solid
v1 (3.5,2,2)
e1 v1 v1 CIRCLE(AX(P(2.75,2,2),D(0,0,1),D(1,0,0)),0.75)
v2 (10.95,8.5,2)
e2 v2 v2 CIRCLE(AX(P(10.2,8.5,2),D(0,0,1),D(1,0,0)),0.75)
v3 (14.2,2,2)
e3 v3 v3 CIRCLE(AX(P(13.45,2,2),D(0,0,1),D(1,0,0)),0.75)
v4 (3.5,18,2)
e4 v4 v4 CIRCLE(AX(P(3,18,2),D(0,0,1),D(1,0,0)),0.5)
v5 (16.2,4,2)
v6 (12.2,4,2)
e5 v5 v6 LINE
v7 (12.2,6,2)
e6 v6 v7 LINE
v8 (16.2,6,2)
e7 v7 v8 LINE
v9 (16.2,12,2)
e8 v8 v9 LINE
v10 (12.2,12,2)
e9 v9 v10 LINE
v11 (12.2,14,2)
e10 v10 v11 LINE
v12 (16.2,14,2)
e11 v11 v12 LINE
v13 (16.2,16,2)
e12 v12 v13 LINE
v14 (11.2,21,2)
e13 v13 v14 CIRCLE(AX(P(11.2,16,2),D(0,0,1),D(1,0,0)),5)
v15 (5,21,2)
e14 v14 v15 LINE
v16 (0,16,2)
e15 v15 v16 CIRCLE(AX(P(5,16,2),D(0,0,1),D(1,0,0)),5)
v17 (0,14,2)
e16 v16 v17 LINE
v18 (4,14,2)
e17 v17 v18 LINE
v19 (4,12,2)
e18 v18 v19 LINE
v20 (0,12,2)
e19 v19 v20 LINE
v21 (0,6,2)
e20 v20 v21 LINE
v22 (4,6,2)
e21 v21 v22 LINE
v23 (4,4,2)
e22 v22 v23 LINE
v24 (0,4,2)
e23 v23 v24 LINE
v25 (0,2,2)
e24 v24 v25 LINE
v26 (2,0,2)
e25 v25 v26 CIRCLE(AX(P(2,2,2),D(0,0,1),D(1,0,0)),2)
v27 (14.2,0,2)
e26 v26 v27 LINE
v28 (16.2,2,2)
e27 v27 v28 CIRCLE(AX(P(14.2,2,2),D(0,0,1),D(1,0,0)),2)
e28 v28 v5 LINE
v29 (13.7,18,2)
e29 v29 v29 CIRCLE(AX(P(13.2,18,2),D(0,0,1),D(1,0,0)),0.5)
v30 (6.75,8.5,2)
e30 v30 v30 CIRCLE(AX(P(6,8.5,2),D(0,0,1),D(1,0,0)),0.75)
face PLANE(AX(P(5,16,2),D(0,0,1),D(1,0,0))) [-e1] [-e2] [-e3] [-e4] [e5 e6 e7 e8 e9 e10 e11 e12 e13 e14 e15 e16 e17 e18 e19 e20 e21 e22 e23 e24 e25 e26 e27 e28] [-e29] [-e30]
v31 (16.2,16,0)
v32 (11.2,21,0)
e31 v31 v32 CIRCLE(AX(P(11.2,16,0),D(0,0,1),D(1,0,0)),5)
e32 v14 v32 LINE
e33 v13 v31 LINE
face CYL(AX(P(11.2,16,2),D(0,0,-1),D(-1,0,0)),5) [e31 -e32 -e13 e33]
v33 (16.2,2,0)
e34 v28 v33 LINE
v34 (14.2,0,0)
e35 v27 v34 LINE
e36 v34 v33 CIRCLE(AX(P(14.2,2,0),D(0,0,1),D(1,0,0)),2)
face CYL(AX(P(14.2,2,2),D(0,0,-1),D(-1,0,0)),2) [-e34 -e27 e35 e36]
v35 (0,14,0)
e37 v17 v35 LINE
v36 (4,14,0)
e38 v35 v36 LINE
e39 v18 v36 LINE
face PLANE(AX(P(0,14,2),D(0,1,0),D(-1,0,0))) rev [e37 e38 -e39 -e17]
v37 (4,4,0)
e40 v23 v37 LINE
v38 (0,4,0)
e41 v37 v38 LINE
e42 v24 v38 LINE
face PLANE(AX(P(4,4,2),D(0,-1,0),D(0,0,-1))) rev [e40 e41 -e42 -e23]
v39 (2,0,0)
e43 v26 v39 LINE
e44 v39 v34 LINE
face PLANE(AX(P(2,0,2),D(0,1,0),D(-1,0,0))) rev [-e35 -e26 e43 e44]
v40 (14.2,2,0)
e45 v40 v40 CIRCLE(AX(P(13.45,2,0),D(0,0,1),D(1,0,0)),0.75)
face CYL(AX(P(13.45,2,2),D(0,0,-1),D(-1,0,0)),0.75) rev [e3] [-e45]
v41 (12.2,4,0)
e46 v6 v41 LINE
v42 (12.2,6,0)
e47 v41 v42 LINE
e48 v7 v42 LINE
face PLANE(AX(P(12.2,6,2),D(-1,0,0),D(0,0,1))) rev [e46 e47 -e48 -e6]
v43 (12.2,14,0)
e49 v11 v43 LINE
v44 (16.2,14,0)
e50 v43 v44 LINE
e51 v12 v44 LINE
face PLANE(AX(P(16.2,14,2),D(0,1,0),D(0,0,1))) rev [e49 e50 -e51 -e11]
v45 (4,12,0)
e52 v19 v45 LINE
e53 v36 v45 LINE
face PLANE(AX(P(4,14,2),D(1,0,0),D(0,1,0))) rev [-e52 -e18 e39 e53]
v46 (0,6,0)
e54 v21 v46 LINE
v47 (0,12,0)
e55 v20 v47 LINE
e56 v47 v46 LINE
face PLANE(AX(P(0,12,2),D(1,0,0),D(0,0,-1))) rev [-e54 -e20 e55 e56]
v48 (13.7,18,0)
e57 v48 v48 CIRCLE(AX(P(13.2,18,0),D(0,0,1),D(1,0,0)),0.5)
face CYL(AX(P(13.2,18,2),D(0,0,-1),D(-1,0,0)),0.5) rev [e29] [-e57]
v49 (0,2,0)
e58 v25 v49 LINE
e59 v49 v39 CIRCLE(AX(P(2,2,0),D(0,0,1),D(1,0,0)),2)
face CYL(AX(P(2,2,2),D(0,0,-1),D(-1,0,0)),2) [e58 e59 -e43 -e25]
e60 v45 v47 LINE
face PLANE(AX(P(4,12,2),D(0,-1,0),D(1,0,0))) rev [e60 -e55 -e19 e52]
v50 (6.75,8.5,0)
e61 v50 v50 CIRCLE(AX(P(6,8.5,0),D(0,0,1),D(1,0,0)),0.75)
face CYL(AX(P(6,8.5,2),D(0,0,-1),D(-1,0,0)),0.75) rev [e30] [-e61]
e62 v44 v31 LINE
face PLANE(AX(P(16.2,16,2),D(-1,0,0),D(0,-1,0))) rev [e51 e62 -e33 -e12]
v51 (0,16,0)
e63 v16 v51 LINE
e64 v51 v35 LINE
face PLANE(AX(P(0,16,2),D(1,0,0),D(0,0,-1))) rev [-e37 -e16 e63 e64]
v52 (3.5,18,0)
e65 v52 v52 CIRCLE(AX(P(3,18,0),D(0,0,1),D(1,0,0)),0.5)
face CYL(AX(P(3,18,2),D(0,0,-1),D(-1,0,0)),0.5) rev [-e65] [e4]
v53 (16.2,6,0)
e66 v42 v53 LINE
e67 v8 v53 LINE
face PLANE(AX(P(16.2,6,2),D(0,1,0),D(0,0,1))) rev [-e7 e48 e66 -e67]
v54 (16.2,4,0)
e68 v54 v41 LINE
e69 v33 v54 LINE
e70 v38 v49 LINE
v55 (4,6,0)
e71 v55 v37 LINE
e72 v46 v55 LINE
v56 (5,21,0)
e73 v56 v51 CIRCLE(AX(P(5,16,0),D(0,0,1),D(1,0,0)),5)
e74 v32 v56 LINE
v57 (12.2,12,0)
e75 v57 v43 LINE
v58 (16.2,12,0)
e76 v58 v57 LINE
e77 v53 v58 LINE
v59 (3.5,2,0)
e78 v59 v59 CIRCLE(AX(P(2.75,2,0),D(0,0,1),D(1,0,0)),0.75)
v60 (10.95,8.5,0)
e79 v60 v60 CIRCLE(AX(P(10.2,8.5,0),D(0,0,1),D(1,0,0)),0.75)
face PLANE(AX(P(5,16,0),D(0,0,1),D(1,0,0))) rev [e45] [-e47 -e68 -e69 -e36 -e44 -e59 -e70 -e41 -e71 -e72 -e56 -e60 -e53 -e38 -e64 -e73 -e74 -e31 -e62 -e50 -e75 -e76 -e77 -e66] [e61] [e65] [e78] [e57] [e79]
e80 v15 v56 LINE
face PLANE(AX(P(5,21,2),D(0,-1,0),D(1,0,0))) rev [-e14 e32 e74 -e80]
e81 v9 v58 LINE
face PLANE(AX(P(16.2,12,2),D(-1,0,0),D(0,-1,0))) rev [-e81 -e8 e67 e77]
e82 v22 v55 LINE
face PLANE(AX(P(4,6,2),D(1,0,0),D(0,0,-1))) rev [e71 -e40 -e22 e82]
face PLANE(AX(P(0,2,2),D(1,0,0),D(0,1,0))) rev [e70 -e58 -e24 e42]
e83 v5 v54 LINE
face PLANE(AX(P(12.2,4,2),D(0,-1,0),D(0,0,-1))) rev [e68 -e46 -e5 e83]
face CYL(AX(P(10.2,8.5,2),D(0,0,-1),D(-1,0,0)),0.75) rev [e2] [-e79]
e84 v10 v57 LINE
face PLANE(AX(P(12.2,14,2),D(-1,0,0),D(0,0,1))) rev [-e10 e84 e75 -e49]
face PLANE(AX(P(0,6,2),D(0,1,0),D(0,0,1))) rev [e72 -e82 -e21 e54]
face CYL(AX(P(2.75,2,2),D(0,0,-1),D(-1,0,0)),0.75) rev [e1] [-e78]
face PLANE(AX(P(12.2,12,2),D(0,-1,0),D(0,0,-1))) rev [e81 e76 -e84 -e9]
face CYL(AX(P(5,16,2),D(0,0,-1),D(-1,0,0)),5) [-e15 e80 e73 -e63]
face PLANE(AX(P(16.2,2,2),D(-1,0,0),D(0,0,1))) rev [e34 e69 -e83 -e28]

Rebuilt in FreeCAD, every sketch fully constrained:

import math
import FreeCAD as App
import Part
import Sketcher
from FreeCAD import Vector
Q = App.Units.Quantity

doc = App.newDocument("Part")
body = doc.addObject("PartDesign::Body", "Body")

# Sketch on XY plane
sketch1 = body.newObject("Sketcher::SketchObject", "Sketch")
sketch1.AttachmentSupport = (doc.getObject("XY_Plane"), [""])
sketch1.MapMode = "FlatFace"
sketch1.addGeometry(Part.LineSegment(Vector(0, 16, 0), Vector(0, 14, 0)), False)
sketch1.addGeometry(Part.LineSegment(Vector(0, 14, 0), Vector(4, 14, 0)), False)
sketch1.addGeometry(Part.LineSegment(Vector(4, 14, 0), Vector(4, 12, 0)), False)
sketch1.addGeometry(Part.LineSegment(Vector(4, 12, 0), Vector(0, 12, 0)), False)
sketch1.addGeometry(Part.LineSegment(Vector(0, 12, 0), Vector(0, 6, 0)), False)
sketch1.addGeometry(Part.LineSegment(Vector(0, 6, 0), Vector(4, 6, 0)), False)
sketch1.addGeometry(Part.LineSegment(Vector(4, 6, 0), Vector(4, 4, 0)), False)
sketch1.addGeometry(Part.LineSegment(Vector(4, 4, 0), Vector(0, 4, 0)), False)
sketch1.addGeometry(Part.LineSegment(Vector(0, 4, 0), Vector(0, 2, 0)), False)
sketch1.addGeometry(Part.ArcOfCircle(Part.Circle(Vector(2, 2, 0), Vector(0, 0, 1), 2), math.radians(-180), math.radians(-90)), False)
sketch1.addGeometry(Part.LineSegment(Vector(2, 0, 0), Vector(14.2, 0, 0)), False)
sketch1.addGeometry(Part.ArcOfCircle(Part.Circle(Vector(14.2, 2, 0), Vector(0, 0, 1), 2), math.radians(-90), math.radians(0)), False)
sketch1.addGeometry(Part.LineSegment(Vector(16.2, 2, 0), Vector(16.2, 4, 0)), False)
sketch1.addGeometry(Part.LineSegment(Vector(16.2, 4, 0), Vector(12.2, 4, 0)), False)
sketch1.addGeometry(Part.LineSegment(Vector(12.2, 4, 0), Vector(12.2, 6, 0)), False)
sketch1.addGeometry(Part.LineSegment(Vector(12.2, 6, 0), Vector(16.2, 6, 0)), False)
sketch1.addGeometry(Part.LineSegment(Vector(16.2, 6, 0), Vector(16.2, 12, 0)), False)
sketch1.addGeometry(Part.LineSegment(Vector(16.2, 12, 0), Vector(12.2, 12, 0)), False)
sketch1.addGeometry(Part.LineSegment(Vector(12.2, 12, 0), Vector(12.2, 14, 0)), False)
sketch1.addGeometry(Part.LineSegment(Vector(12.2, 14, 0), Vector(16.2, 14, 0)), False)
sketch1.addGeometry(Part.LineSegment(Vector(16.2, 14, 0), Vector(16.2, 16, 0)), False)
sketch1.addGeometry(Part.ArcOfCircle(Part.Circle(Vector(11.2, 16, 0), Vector(0, 0, 1), 5), math.radians(0), math.radians(90)), False)
sketch1.addGeometry(Part.LineSegment(Vector(11.2, 21, 0), Vector(5, 21, 0)), False)
sketch1.addGeometry(Part.ArcOfCircle(Part.Circle(Vector(5, 16, 0), Vector(0, 0, 1), 5), math.radians(90), math.radians(180)), False)
sketch1.addGeometry(Part.Circle(Vector(2.8, 2, 0), Vector(0, 0, 1), 0.8), False)
sketch1.addGeometry(Part.Circle(Vector(6, 8.5, 0), Vector(0, 0, 1), 0.8), False)
sketch1.addGeometry(Part.Circle(Vector(13.4, 2, 0), Vector(0, 0, 1), 0.8), False)
sketch1.addGeometry(Part.Circle(Vector(10.2, 8.5, 0), Vector(0, 0, 1), 0.8), False)
sketch1.addGeometry(Part.Circle(Vector(3, 18, 0), Vector(0, 0, 1), 0.5), False)
sketch1.addGeometry(Part.Circle(Vector(13.2, 18, 0), Vector(0, 0, 1), 0.5), False)
sketch1.addConstraint(Sketcher.Constraint("Coincident", 0, 2, 1, 1))
sketch1.addConstraint(Sketcher.Constraint("Coincident", 1, 2, 2, 1))
sketch1.addConstraint(Sketcher.Constraint("Coincident", 2, 2, 3, 1))
sketch1.addConstraint(Sketcher.Constraint("Coincident", 3, 2, 4, 1))
sketch1.addConstraint(Sketcher.Constraint("Coincident", 4, 2, 5, 1))
sketch1.addConstraint(Sketcher.Constraint("Coincident", 5, 2, 6, 1))
sketch1.addConstraint(Sketcher.Constraint("Coincident", 6, 2, 7, 1))
sketch1.addConstraint(Sketcher.Constraint("Coincident", 7, 2, 8, 1))
sketch1.addConstraint(Sketcher.Constraint("Tangent", 8, 2, 9, 1))
sketch1.addConstraint(Sketcher.Constraint("Tangent", 9, 2, 10, 1))
sketch1.addConstraint(Sketcher.Constraint("Tangent", 10, 2, 11, 1))
sketch1.addConstraint(Sketcher.Constraint("Tangent", 11, 2, 12, 1))
sketch1.addConstraint(Sketcher.Constraint("Coincident", 12, 2, 13, 1))
sketch1.addConstraint(Sketcher.Constraint("Coincident", 13, 2, 14, 1))
sketch1.addConstraint(Sketcher.Constraint("Coincident", 14, 2, 15, 1))
sketch1.addConstraint(Sketcher.Constraint("Coincident", 15, 2, 16, 1))
sketch1.addConstraint(Sketcher.Constraint("Coincident", 16, 2, 17, 1))
sketch1.addConstraint(Sketcher.Constraint("Coincident", 17, 2, 18, 1))
sketch1.addConstraint(Sketcher.Constraint("Coincident", 18, 2, 19, 1))
sketch1.addConstraint(Sketcher.Constraint("Coincident", 19, 2, 20, 1))
sketch1.addConstraint(Sketcher.Constraint("Tangent", 20, 2, 21, 1))
sketch1.addConstraint(Sketcher.Constraint("Tangent", 21, 2, 22, 1))
sketch1.addConstraint(Sketcher.Constraint("Tangent", 22, 2, 23, 1))
sketch1.addConstraint(Sketcher.Constraint("Tangent", 23, 2, 0, 1))
sketch1.addConstraint(Sketcher.Constraint("Vertical", 0))
sketch1.addConstraint(Sketcher.Constraint("Horizontal", 1))
sketch1.addConstraint(Sketcher.Constraint("Vertical", 2))
sketch1.addConstraint(Sketcher.Constraint("Horizontal", 3))
sketch1.addConstraint(Sketcher.Constraint("Vertical", 4))
sketch1.addConstraint(Sketcher.Constraint("Horizontal", 5))
sketch1.addConstraint(Sketcher.Constraint("Vertical", 6))
sketch1.addConstraint(Sketcher.Constraint("Horizontal", 7))
sketch1.addConstraint(Sketcher.Constraint("Vertical", 8))
sketch1.addConstraint(Sketcher.Constraint("Horizontal", 10))
sketch1.addConstraint(Sketcher.Constraint("Vertical", 12))
sketch1.addConstraint(Sketcher.Constraint("Horizontal", 13))
sketch1.addConstraint(Sketcher.Constraint("Vertical", 14))
sketch1.addConstraint(Sketcher.Constraint("Horizontal", 15))
sketch1.addConstraint(Sketcher.Constraint("Vertical", 16))
sketch1.addConstraint(Sketcher.Constraint("Horizontal", 17))
sketch1.addConstraint(Sketcher.Constraint("Vertical", 18))
sketch1.addConstraint(Sketcher.Constraint("Horizontal", 19))
sketch1.addConstraint(Sketcher.Constraint("Vertical", 20))
sketch1.addConstraint(Sketcher.Constraint("Horizontal", 22))
sketch1.addConstraint(Sketcher.Constraint("Equal", 9, 11))
sketch1.addConstraint(Sketcher.Constraint("Equal", 21, 23))
sketch1.addConstraint(Sketcher.Constraint("Equal", 24, 25))
sketch1.addConstraint(Sketcher.Constraint("Equal", 25, 26))
sketch1.addConstraint(Sketcher.Constraint("Equal", 26, 27))
sketch1.addConstraint(Sketcher.Constraint("Equal", 28, 29))
sketch1.addConstraint(Sketcher.Constraint("PointOnObject", 0, 2, -2))
sketch1.addConstraint(Sketcher.Constraint("PointOnObject", 3, 2, -2))
sketch1.addConstraint(Sketcher.Constraint("PointOnObject", 7, 2, -2))
sketch1.addConstraint(Sketcher.Constraint("PointOnObject", 9, 2, -1))
sketch1.addConstraint(Sketcher.Constraint("Horizontal", 11, 3, 24, 3))
sketch1.addConstraint(Sketcher.Constraint("Horizontal", 24, 3, 26, 3))
sketch1.addConstraint(Sketcher.Constraint("Horizontal", 25, 3, 27, 3))
sketch1.addConstraint(Sketcher.Constraint("Horizontal", 28, 3, 29, 3))
sketch1.addConstraint(Sketcher.Constraint("Horizontal", 7, 2, 12, 2))
sketch1.addConstraint(Sketcher.Constraint("Horizontal", 5, 2, 14, 2))
sketch1.addConstraint(Sketcher.Constraint("Horizontal", 3, 2, 16, 2))
sketch1.addConstraint(Sketcher.Constraint("Horizontal", 1, 2, 18, 2))
sketch1.addConstraint(Sketcher.Constraint("Vertical", 2, 2, 5, 2))
sketch1.addConstraint(Sketcher.Constraint("Vertical", 12, 2, 15, 2))
sketch1.addConstraint(Sketcher.Constraint("Vertical", 14, 2, 17, 2))
sketch1.addConstraint(Sketcher.Constraint("Vertical", 16, 2, 19, 2))
sketch1.addConstraint(Sketcher.Constraint("Equal", 7, 13))
sketch1.addConstraint(Sketcher.Constraint("Equal", 0, 2))
sketch1.addConstraint(Sketcher.Constraint("Equal", 2, 6))
sketch1.addConstraint(Sketcher.Constraint("Equal", 6, 8))
sketch1.addConstraint(Sketcher.Constraint("Diameter", 28, Q("1 mm")))
sketch1.addConstraint(Sketcher.Constraint("Radius", 9, Q("2 mm")))
sketch1.addConstraint(Sketcher.Constraint("Radius", 21, Q("5 mm")))
sketch1.addConstraint(Sketcher.Constraint("Diameter", 24, Q("1.5 mm")))
sketch1.addConstraint(Sketcher.Constraint("DistanceX", 1, 1, 1, 2, Q("4 mm")))
sketch1.addConstraint(Sketcher.Constraint("DistanceY", 0, 2, 0, 1, Q("2 mm")))
sketch1.addConstraint(Sketcher.Constraint("DistanceY", 4, 2, 4, 1, Q("6 mm")))
sketch1.addConstraint(Sketcher.Constraint("DistanceX", 10, 1, 10, 2, Q("12.2 mm")))
sketch1.addConstraint(Sketcher.Constraint("DistanceX", -1, 1, 25, 3, Q("6 mm")))
sketch1.addConstraint(Sketcher.Constraint("DistanceX", -1, 1, 28, 3, Q("3 mm")))
sketch1.addConstraint(Sketcher.Constraint("DistanceY", -1, 1, 28, 3, Q("18 mm")))
sketch1.addConstraint(Sketcher.Constraint("DistanceX", 27, 3, 21, 3, Q("1 mm")))
sketch1.addConstraint(Sketcher.Constraint("DistanceX", 21, 3, 29, 3, Q("2 mm")))
sketch1.addConstraint(Sketcher.Constraint("DistanceY", -1, 1, 25, 3, Q("8.5 mm")))
sketch1.addConstraint(Sketcher.Constraint("DistanceX", 24, 3, 26, 3, Q("10.7 mm")))
sketch1.addConstraint(Sketcher.Constraint("DistanceX", -1, 1, 24, 3, Q("2.75 mm")))
pad1 = body.newObject("PartDesign::Pad", "Pad")
pad1.Profile = sketch1
pad1.Length = 2

doc.recompute()
